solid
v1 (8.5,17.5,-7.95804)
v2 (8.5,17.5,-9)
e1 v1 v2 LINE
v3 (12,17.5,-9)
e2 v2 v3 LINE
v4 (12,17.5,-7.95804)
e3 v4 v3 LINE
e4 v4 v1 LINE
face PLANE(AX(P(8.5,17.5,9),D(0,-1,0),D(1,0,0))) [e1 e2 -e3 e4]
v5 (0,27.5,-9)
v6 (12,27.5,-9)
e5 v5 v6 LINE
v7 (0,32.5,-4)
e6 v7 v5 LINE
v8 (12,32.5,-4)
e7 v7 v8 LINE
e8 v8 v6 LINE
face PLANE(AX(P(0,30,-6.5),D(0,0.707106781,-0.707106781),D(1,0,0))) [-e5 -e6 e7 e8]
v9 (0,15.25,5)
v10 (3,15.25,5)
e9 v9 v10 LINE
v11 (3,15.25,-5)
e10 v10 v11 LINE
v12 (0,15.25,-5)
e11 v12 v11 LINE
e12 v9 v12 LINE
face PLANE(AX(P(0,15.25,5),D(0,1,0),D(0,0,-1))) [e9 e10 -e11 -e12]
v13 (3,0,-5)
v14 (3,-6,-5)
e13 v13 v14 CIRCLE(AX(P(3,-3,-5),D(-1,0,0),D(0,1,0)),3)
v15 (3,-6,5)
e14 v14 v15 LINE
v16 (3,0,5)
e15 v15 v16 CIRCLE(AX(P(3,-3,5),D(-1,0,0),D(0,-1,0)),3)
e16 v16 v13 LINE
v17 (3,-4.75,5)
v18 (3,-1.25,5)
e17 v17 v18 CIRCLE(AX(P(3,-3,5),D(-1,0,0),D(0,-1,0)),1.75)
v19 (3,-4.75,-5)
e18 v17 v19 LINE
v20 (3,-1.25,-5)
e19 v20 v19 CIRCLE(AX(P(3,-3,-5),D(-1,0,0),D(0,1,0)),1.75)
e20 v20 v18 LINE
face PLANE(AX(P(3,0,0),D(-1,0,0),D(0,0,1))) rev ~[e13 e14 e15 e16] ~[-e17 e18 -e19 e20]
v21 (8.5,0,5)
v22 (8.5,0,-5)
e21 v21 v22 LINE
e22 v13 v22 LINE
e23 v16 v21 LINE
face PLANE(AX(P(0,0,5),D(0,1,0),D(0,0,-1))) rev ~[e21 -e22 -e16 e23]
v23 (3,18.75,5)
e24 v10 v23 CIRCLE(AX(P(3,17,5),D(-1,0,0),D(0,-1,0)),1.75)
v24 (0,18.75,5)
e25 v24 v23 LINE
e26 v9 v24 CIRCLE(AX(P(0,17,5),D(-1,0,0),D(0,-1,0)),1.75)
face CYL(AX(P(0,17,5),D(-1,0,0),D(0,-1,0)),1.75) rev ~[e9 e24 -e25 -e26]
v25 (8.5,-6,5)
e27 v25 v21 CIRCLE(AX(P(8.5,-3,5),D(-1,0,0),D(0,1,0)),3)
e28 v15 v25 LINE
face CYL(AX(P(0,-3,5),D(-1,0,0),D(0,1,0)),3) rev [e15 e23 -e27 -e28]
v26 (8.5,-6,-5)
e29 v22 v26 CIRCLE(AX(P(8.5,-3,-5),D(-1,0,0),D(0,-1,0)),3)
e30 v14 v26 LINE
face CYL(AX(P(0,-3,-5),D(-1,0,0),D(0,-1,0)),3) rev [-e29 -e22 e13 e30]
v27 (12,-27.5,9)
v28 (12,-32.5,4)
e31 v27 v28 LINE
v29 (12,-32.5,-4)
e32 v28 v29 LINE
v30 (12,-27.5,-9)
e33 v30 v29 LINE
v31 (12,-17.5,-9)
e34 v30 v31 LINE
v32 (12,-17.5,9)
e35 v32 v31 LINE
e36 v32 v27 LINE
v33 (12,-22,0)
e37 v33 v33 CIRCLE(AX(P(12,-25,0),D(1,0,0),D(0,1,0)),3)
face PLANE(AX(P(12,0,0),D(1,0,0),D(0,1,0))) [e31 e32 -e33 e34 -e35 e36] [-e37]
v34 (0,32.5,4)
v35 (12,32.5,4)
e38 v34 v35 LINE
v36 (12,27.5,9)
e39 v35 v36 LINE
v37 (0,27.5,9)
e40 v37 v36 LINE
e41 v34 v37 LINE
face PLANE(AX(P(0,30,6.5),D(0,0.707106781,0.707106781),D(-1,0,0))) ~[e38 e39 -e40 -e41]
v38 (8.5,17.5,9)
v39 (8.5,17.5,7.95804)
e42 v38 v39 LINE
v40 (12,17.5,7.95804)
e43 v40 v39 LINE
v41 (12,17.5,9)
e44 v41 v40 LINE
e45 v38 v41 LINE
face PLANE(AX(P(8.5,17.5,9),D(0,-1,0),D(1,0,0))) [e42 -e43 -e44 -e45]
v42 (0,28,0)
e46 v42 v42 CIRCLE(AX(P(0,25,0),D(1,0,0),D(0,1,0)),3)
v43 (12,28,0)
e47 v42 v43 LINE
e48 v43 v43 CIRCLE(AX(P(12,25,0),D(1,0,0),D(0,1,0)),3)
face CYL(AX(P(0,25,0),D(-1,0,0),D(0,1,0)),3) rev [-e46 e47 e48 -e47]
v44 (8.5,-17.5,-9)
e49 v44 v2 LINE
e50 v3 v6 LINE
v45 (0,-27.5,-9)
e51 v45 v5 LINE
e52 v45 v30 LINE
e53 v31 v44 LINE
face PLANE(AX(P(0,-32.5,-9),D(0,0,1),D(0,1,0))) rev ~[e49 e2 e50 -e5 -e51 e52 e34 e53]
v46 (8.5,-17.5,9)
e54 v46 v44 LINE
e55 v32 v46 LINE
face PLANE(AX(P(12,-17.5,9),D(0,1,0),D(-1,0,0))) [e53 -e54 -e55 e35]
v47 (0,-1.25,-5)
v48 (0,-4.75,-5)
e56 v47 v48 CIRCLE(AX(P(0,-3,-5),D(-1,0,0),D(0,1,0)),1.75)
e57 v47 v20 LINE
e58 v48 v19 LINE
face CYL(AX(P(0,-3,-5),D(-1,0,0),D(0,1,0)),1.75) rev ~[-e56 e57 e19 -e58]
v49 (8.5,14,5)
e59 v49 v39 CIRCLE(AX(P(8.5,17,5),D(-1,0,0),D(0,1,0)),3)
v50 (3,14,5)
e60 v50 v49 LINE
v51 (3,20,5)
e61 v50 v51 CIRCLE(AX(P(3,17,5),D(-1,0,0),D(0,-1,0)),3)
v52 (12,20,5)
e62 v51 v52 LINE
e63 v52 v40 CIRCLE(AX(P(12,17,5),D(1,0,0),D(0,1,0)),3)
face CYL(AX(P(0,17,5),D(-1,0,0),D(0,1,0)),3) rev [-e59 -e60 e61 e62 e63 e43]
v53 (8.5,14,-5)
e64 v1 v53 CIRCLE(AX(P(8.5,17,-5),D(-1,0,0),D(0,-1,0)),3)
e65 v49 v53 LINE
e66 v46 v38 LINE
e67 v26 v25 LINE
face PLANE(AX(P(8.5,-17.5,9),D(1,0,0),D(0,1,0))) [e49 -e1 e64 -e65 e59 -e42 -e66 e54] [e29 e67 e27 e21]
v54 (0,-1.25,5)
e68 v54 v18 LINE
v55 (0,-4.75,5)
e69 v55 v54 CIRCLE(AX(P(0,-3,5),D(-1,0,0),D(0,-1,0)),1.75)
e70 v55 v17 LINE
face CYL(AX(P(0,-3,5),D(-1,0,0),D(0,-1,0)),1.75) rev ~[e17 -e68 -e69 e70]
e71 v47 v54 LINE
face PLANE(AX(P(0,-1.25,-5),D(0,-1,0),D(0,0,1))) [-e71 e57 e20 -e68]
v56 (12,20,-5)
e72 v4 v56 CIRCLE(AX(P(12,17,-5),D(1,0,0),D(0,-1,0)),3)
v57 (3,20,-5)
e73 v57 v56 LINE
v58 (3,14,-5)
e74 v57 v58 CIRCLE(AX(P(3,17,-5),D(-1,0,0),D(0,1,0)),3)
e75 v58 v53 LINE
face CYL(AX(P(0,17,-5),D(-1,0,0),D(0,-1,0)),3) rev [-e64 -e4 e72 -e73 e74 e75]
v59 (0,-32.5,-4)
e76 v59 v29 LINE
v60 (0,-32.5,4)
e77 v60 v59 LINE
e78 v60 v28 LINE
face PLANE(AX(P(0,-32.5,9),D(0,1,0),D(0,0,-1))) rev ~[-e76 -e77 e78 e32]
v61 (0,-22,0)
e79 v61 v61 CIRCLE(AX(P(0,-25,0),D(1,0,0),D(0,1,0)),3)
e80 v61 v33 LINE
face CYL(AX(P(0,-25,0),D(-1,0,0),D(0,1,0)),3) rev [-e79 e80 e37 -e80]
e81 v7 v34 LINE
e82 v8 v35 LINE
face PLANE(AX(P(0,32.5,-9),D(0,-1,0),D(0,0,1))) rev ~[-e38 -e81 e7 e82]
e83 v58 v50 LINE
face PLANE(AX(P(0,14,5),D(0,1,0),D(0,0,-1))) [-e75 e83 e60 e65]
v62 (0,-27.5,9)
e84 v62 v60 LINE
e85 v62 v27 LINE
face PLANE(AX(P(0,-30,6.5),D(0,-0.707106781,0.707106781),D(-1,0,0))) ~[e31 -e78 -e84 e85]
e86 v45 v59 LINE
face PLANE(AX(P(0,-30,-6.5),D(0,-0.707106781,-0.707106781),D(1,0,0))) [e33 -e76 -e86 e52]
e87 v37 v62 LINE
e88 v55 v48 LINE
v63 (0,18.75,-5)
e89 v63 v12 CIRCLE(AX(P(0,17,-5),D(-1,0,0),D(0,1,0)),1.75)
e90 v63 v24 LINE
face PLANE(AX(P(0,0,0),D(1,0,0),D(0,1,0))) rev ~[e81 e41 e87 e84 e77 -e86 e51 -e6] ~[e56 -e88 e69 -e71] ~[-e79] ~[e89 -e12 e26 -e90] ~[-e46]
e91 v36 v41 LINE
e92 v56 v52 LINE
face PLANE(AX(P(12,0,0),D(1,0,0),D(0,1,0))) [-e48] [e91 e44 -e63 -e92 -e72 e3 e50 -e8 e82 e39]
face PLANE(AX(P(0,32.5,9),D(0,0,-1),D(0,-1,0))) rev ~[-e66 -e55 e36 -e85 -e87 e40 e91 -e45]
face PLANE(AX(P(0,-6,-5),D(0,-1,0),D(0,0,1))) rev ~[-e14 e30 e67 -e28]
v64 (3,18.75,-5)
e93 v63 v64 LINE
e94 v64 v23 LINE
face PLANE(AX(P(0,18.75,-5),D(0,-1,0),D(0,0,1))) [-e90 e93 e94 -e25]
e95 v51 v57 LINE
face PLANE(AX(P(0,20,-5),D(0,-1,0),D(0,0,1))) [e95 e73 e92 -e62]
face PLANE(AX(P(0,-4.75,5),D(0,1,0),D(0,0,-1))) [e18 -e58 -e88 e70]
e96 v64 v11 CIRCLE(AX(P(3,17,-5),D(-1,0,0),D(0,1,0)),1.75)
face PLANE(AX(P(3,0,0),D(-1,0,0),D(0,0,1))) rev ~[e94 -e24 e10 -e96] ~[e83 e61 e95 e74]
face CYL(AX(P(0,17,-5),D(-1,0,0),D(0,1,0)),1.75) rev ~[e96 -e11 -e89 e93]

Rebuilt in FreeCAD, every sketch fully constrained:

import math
import FreeCAD as App
import Part
import Sketcher
Q = App.Units.Quantity


def edges_at(feature, points):
    """Names of the edges that pass closest to the given points."""
    edges = feature.Shape.Edges
    near = lambda p: min(range(len(edges)), key=lambda i: edges[i].distToShape(Part.Vertex(*p))[0])
    return sorted({f"Edge{near(p) + 1}" for p in points})

doc = App.newDocument("Part")
body = doc.addObject("PartDesign::Body", "Body")

# Sketch on YZ plane
sketch1 = body.newObject("Sketcher::SketchObject", "Sketch")
sketch1.AttachmentSupport = (doc.getObject("YZ_Plane"), [""])
sketch1.MapMode = "FlatFace"
sketch1.addGeometry([
    Part.LineSegment(App.Vector(32.5, -9, 0), App.Vector(32.5, 9, 0)),  # 0
    Part.LineSegment(App.Vector(32.5, 9, 0), App.Vector(-32.5, 9, 0)),  # 1
    Part.LineSegment(App.Vector(-32.5, 9, 0), App.Vector(-32.5, -9, 0)),  # 2
    Part.LineSegment(App.Vector(-32.5, -9, 0), App.Vector(32.5, -9, 0)),  # 3
    Part.Circle(App.Vector(-25, 0, 0), App.Vector(0, 0, 1), 3),  # 4
    Part.ArcOfCircle(Part.Circle(App.Vector(-3, -5, 0), App.Vector(0, 0, 1), 3), math.radians(180), math.radians(360)),  # 5
    Part.LineSegment(App.Vector(-6, -5, 0), App.Vector(-6, 5, 0)),  # 6
    Part.ArcOfCircle(Part.Circle(App.Vector(-3, 5, 0), App.Vector(0, 0, 1), 3), math.radians(0), math.radians(180)),  # 7
    Part.LineSegment(App.Vector(0, 5, 0), App.Vector(0, -5, 0)),  # 8
    Part.LineSegment(App.Vector(20, 5, 0), App.Vector(20, -5, 0)),  # 9
    Part.ArcOfCircle(Part.Circle(App.Vector(17, -5, 0), App.Vector(0, 0, 1), 3), math.radians(180), math.radians(360)),  # 10
    Part.LineSegment(App.Vector(14, -5, 0), App.Vector(14, 5, 0)),  # 11
    Part.ArcOfCircle(Part.Circle(App.Vector(17, 5, 0), App.Vector(0, 0, 1), 3), math.radians(0), math.radians(180)),  # 12
    Part.Circle(App.Vector(25, 0, 0), App.Vector(0, 0, 1), 3),  # 13
], False)
sketch1.addConstraint([
    Sketcher.Constraint("Coincident", 0, 2, 1, 1),
    Sketcher.Constraint("Coincident", 1, 2, 2, 1),
    Sketcher.Constraint("Coincident", 2, 2, 3, 1),
    Sketcher.Constraint("Coincident", 3, 2, 0, 1),
    Sketcher.Constraint("Tangent", 5, 1, 6, 1),
    Sketcher.Constraint("Tangent", 6, 2, 7, 2),
    Sketcher.Constraint("Tangent", 7, 1, 8, 1),
    Sketcher.Constraint("Tangent", 8, 2, 5, 2),
    Sketcher.Constraint("Tangent", 9, 2, 10, 2),
    Sketcher.Constraint("Tangent", 10, 1, 11, 1),
    Sketcher.Constraint("Tangent", 11, 2, 12, 2),
    Sketcher.Constraint("Tangent", 12, 1, 9, 1),
    Sketcher.Constraint("Vertical", 0),
    Sketcher.Constraint("Horizontal", 1),
    Sketcher.Constraint("Vertical", 2),
    Sketcher.Constraint("Horizontal", 3),
    Sketcher.Constraint("Vertical", 6),
    Sketcher.Constraint("Vertical", 8),
    Sketcher.Constraint("Vertical", 9),
    Sketcher.Constraint("Vertical", 11),
    Sketcher.Constraint("Equal", 4, 5),
    Sketcher.Constraint("Equal", 7, 10),
    Sketcher.Constraint("Equal", 12, 13),
    Sketcher.Constraint("Symmetric", 4, 3, 13, 3, -1, 1),
    Sketcher.Constraint("Symmetric", 0, 2, 2, 2, -1, 1),
    Sketcher.Constraint("Symmetric", 7, 1, 8, 2, -1, 1),
    Sketcher.Constraint("PointOnObject", 4, 3, -1),
    Sketcher.Constraint("Horizontal", 5, 3, 10, 3),
    Sketcher.Constraint("Horizontal", 7, 3, 12, 3),
    Sketcher.Constraint("Diameter", 4, Q("6 mm")),
    Sketcher.Constraint("DistanceX", 1, 2, 1, 1, Q("65 mm")),
    Sketcher.Constraint("DistanceY", 0, 1, 0, 2, Q("18 mm")),
    Sketcher.Constraint("DistanceY", 6, 1, 6, 2, Q("10 mm")),
    Sketcher.Constraint("DistanceX", 4, 3, -1, 1, Q("25 mm")),
    Sketcher.Constraint("DistanceX", -1, 1, 9, 2, Q("20 mm")),
])
pad1 = body.newObject("PartDesign::Pad", "Pad")
pad1.Profile = sketch1
pad1.Length = 12

# Sketch on YZ plane
sketch2 = body.newObject("Sketcher::SketchObject", "Sketch001")
sketch2.AttachmentSupport = (doc.getObject("YZ_Plane"), [""])
sketch2.MapMode = "FlatFace"
sketch2.addGeometry([
    Part.LineSegment(App.Vector(20, 5, 0), App.Vector(20, -5, 0)),  # 0
    Part.ArcOfCircle(Part.Circle(App.Vector(17, -5, 0), App.Vector(0, 0, 1), 3), math.radians(180), math.radians(360)),  # 1
    Part.LineSegment(App.Vector(14, -5, 0), App.Vector(14, 5, 0)),  # 2
    Part.ArcOfCircle(Part.Circle(App.Vector(17, 5, 0), App.Vector(0, 0, 1), 3), math.radians(0), math.radians(180)),  # 3
    Part.ArcOfCircle(Part.Circle(App.Vector(17, 5, 0), App.Vector(0, 0, 1), 1.75), math.radians(0), math.radians(180)),  # 4
    Part.LineSegment(App.Vector(15.25, 5, 0), App.Vector(15.25, -5, 0)),  # 5
    Part.ArcOfCircle(Part.Circle(App.Vector(17, -5, 0), App.Vector(0, 0, 1), 1.75), math.radians(180), math.radians(360)),  # 6
    Part.LineSegment(App.Vector(18.75, -5, 0), App.Vector(18.75, 5, 0)),  # 7
    Part.ArcOfCircle(Part.Circle(App.Vector(-3, 5, 0), App.Vector(0, 0, 1), 3), math.radians(0), math.radians(180)),  # 8
    Part.LineSegment(App.Vector(0, 5, 0), App.Vector(0, -5, 0)),  # 9
    Part.ArcOfCircle(Part.Circle(App.Vector(-3, -5, 0), App.Vector(0, 0, 1), 3), math.radians(180), math.radians(360)),  # 10
    Part.LineSegment(App.Vector(-6, -5, 0), App.Vector(-6, 5, 0)),  # 11
    Part.ArcOfCircle(Part.Circle(App.Vector(-3, 5, 0), App.Vector(0, 0, 1), 1.75), math.radians(0), math.radians(180)),  # 12
    Part.LineSegment(App.Vector(-4.75, 5, 0), App.Vector(-4.75, -5, 0)),  # 13
    Part.ArcOfCircle(Part.Circle(App.Vector(-3, -5, 0), App.Vector(0, 0, 1), 1.75), math.radians(180), math.radians(360)),  # 14
    Part.LineSegment(App.Vector(-1.25, -5, 0), App.Vector(-1.25, 5, 0)),  # 15
], False)
sketch2.addConstraint([
    Sketcher.Constraint("Tangent", 0, 2, 1, 2),
    Sketcher.Constraint("Tangent", 1, 1, 2, 1),
    Sketcher.Constraint("Tangent", 2, 2, 3, 2),
    Sketcher.Constraint("Tangent", 3, 1, 0, 1),
    Sketcher.Constraint("Tangent", 4, 2, 5, 1),
    Sketcher.Constraint("Tangent", 5, 2, 6, 1),
    Sketcher.Constraint("Tangent", 6, 2, 7, 1),
    Sketcher.Constraint("Tangent", 7, 2, 4, 1),
    Sketcher.Constraint("Tangent", 8, 1, 9, 1),
    Sketcher.Constraint("Tangent", 9, 2, 10, 2),
    Sketcher.Constraint("Tangent", 10, 1, 11, 1),
    Sketcher.Constraint("Tangent", 11, 2, 8, 2),
    Sketcher.Constraint("Tangent", 12, 2, 13, 1),
    Sketcher.Constraint("Tangent", 13, 2, 14, 1),
    Sketcher.Constraint("Tangent", 14, 2, 15, 1),
    Sketcher.Constraint("Tangent", 15, 2, 12, 1),
    Sketcher.Constraint("Vertical", 0),
    Sketcher.Constraint("Vertical", 2),
    Sketcher.Constraint("Vertical", 5),
    Sketcher.Constraint("Vertical", 7),
    Sketcher.Constraint("Vertical", 9),
    Sketcher.Constraint("Vertical", 11),
    Sketcher.Constraint("Vertical", 13),
    Sketcher.Constraint("Vertical", 15),
    Sketcher.Constraint("Coincident", 4, 3, 3, 3),
    Sketcher.Constraint("Coincident", 12, 3, 8, 3),
    Sketcher.Constraint("Equal", 3, 8),
    Sketcher.Constraint("Equal", 6, 12),
    Sketcher.Constraint("Symmetric", 8, 1, 9, 2, -1, 1),
    Sketcher.Constraint("Horizontal", 4, 3, 8, 3),
    Sketcher.Constraint("Horizontal", 6, 3, 10, 3),
    Sketcher.Constraint("Horizontal", 6, 3, 14, 3),
    Sketcher.Constraint("Horizontal", 14, 3, 0, 2),
    Sketcher.Constraint("Radius", 4, Q("1.75 mm")),
    Sketcher.Constraint("Radius", 1, Q("3 mm")),
    Sketcher.Constraint("DistanceY", 0, 2, 0, 1, Q("10 mm")),
    Sketcher.Constraint("DistanceX", -1, 1, 1, 3, Q("17 mm")),
])
pad2 = body.newObject("PartDesign::Pad", "Pad001")
pad2.Profile = sketch2
pad2.Length = 3
doc.recompute()

chamfer = body.newObject("PartDesign::Chamfer", "Chamfer")
chamfer.Base = (pad2, edges_at(pad2, [
    (6, -32.5, 9),
    (6, -32.5, -9),
    (6, 32.5, -9),
    (6, 32.5, 9),
]))
chamfer.Size = 5

# Sketch on XY plane
sketch3 = body.newObject("Sketcher::SketchObject", "Sketch002")
sketch3.AttachmentSupport = (doc.getObject("XY_Plane"), [""])
sketch3.MapMode = "FlatFace"
sketch3.AttachmentOffset = App.Placement(App.Vector(0, 0, 9), App.Rotation())
sketch3.addGeometry([
    Part.LineSegment(App.Vector(12, -17.5, 0), App.Vector(12, 17.5, 0)),
    Part.LineSegment(App.Vector(12, 17.5, 0), App.Vector(8.5, 17.5, 0)),
    Part.LineSegment(App.Vector(8.5, 17.5, 0), App.Vector(8.5, -17.5, 0)),
    Part.LineSegment(App.Vector(8.5, -17.5, 0), App.Vector(12, -17.5, 0)),
], False)
sketch3.addConstraint([
    Sketcher.Constraint("Coincident", 0, 2, 1, 1),
    Sketcher.Constraint("Coincident", 1, 2, 2, 1),
    Sketcher.Constraint("Coincident", 2, 2, 3, 1),
    Sketcher.Constraint("Coincident", 3, 2, 0, 1),
    Sketcher.Constraint("Vertical", 0),
    Sketcher.Constraint("Horizontal", 1),
    Sketcher.Constraint("Vertical", 2),
    Sketcher.Constraint("Horizontal", 3),
    Sketcher.Constraint("DistanceY", 0, 1, 0, 2, Q("35 mm")),
    Sketcher.Constraint("DistanceX", 1, 2, 1, 1, Q("3.5 mm")),
    Sketcher.Constraint("DistanceX", -1, 1, 0, 2, Q("12 mm")),
    Sketcher.Constraint("DistanceY", -1, 1, 0, 2, Q("17.5 mm")),
])
pocket1 = body.newObject("PartDesign::Pocket", "Pocket")
pocket1.Profile = sketch3
pocket1.Type = "ThroughAll"

doc.recompute()
